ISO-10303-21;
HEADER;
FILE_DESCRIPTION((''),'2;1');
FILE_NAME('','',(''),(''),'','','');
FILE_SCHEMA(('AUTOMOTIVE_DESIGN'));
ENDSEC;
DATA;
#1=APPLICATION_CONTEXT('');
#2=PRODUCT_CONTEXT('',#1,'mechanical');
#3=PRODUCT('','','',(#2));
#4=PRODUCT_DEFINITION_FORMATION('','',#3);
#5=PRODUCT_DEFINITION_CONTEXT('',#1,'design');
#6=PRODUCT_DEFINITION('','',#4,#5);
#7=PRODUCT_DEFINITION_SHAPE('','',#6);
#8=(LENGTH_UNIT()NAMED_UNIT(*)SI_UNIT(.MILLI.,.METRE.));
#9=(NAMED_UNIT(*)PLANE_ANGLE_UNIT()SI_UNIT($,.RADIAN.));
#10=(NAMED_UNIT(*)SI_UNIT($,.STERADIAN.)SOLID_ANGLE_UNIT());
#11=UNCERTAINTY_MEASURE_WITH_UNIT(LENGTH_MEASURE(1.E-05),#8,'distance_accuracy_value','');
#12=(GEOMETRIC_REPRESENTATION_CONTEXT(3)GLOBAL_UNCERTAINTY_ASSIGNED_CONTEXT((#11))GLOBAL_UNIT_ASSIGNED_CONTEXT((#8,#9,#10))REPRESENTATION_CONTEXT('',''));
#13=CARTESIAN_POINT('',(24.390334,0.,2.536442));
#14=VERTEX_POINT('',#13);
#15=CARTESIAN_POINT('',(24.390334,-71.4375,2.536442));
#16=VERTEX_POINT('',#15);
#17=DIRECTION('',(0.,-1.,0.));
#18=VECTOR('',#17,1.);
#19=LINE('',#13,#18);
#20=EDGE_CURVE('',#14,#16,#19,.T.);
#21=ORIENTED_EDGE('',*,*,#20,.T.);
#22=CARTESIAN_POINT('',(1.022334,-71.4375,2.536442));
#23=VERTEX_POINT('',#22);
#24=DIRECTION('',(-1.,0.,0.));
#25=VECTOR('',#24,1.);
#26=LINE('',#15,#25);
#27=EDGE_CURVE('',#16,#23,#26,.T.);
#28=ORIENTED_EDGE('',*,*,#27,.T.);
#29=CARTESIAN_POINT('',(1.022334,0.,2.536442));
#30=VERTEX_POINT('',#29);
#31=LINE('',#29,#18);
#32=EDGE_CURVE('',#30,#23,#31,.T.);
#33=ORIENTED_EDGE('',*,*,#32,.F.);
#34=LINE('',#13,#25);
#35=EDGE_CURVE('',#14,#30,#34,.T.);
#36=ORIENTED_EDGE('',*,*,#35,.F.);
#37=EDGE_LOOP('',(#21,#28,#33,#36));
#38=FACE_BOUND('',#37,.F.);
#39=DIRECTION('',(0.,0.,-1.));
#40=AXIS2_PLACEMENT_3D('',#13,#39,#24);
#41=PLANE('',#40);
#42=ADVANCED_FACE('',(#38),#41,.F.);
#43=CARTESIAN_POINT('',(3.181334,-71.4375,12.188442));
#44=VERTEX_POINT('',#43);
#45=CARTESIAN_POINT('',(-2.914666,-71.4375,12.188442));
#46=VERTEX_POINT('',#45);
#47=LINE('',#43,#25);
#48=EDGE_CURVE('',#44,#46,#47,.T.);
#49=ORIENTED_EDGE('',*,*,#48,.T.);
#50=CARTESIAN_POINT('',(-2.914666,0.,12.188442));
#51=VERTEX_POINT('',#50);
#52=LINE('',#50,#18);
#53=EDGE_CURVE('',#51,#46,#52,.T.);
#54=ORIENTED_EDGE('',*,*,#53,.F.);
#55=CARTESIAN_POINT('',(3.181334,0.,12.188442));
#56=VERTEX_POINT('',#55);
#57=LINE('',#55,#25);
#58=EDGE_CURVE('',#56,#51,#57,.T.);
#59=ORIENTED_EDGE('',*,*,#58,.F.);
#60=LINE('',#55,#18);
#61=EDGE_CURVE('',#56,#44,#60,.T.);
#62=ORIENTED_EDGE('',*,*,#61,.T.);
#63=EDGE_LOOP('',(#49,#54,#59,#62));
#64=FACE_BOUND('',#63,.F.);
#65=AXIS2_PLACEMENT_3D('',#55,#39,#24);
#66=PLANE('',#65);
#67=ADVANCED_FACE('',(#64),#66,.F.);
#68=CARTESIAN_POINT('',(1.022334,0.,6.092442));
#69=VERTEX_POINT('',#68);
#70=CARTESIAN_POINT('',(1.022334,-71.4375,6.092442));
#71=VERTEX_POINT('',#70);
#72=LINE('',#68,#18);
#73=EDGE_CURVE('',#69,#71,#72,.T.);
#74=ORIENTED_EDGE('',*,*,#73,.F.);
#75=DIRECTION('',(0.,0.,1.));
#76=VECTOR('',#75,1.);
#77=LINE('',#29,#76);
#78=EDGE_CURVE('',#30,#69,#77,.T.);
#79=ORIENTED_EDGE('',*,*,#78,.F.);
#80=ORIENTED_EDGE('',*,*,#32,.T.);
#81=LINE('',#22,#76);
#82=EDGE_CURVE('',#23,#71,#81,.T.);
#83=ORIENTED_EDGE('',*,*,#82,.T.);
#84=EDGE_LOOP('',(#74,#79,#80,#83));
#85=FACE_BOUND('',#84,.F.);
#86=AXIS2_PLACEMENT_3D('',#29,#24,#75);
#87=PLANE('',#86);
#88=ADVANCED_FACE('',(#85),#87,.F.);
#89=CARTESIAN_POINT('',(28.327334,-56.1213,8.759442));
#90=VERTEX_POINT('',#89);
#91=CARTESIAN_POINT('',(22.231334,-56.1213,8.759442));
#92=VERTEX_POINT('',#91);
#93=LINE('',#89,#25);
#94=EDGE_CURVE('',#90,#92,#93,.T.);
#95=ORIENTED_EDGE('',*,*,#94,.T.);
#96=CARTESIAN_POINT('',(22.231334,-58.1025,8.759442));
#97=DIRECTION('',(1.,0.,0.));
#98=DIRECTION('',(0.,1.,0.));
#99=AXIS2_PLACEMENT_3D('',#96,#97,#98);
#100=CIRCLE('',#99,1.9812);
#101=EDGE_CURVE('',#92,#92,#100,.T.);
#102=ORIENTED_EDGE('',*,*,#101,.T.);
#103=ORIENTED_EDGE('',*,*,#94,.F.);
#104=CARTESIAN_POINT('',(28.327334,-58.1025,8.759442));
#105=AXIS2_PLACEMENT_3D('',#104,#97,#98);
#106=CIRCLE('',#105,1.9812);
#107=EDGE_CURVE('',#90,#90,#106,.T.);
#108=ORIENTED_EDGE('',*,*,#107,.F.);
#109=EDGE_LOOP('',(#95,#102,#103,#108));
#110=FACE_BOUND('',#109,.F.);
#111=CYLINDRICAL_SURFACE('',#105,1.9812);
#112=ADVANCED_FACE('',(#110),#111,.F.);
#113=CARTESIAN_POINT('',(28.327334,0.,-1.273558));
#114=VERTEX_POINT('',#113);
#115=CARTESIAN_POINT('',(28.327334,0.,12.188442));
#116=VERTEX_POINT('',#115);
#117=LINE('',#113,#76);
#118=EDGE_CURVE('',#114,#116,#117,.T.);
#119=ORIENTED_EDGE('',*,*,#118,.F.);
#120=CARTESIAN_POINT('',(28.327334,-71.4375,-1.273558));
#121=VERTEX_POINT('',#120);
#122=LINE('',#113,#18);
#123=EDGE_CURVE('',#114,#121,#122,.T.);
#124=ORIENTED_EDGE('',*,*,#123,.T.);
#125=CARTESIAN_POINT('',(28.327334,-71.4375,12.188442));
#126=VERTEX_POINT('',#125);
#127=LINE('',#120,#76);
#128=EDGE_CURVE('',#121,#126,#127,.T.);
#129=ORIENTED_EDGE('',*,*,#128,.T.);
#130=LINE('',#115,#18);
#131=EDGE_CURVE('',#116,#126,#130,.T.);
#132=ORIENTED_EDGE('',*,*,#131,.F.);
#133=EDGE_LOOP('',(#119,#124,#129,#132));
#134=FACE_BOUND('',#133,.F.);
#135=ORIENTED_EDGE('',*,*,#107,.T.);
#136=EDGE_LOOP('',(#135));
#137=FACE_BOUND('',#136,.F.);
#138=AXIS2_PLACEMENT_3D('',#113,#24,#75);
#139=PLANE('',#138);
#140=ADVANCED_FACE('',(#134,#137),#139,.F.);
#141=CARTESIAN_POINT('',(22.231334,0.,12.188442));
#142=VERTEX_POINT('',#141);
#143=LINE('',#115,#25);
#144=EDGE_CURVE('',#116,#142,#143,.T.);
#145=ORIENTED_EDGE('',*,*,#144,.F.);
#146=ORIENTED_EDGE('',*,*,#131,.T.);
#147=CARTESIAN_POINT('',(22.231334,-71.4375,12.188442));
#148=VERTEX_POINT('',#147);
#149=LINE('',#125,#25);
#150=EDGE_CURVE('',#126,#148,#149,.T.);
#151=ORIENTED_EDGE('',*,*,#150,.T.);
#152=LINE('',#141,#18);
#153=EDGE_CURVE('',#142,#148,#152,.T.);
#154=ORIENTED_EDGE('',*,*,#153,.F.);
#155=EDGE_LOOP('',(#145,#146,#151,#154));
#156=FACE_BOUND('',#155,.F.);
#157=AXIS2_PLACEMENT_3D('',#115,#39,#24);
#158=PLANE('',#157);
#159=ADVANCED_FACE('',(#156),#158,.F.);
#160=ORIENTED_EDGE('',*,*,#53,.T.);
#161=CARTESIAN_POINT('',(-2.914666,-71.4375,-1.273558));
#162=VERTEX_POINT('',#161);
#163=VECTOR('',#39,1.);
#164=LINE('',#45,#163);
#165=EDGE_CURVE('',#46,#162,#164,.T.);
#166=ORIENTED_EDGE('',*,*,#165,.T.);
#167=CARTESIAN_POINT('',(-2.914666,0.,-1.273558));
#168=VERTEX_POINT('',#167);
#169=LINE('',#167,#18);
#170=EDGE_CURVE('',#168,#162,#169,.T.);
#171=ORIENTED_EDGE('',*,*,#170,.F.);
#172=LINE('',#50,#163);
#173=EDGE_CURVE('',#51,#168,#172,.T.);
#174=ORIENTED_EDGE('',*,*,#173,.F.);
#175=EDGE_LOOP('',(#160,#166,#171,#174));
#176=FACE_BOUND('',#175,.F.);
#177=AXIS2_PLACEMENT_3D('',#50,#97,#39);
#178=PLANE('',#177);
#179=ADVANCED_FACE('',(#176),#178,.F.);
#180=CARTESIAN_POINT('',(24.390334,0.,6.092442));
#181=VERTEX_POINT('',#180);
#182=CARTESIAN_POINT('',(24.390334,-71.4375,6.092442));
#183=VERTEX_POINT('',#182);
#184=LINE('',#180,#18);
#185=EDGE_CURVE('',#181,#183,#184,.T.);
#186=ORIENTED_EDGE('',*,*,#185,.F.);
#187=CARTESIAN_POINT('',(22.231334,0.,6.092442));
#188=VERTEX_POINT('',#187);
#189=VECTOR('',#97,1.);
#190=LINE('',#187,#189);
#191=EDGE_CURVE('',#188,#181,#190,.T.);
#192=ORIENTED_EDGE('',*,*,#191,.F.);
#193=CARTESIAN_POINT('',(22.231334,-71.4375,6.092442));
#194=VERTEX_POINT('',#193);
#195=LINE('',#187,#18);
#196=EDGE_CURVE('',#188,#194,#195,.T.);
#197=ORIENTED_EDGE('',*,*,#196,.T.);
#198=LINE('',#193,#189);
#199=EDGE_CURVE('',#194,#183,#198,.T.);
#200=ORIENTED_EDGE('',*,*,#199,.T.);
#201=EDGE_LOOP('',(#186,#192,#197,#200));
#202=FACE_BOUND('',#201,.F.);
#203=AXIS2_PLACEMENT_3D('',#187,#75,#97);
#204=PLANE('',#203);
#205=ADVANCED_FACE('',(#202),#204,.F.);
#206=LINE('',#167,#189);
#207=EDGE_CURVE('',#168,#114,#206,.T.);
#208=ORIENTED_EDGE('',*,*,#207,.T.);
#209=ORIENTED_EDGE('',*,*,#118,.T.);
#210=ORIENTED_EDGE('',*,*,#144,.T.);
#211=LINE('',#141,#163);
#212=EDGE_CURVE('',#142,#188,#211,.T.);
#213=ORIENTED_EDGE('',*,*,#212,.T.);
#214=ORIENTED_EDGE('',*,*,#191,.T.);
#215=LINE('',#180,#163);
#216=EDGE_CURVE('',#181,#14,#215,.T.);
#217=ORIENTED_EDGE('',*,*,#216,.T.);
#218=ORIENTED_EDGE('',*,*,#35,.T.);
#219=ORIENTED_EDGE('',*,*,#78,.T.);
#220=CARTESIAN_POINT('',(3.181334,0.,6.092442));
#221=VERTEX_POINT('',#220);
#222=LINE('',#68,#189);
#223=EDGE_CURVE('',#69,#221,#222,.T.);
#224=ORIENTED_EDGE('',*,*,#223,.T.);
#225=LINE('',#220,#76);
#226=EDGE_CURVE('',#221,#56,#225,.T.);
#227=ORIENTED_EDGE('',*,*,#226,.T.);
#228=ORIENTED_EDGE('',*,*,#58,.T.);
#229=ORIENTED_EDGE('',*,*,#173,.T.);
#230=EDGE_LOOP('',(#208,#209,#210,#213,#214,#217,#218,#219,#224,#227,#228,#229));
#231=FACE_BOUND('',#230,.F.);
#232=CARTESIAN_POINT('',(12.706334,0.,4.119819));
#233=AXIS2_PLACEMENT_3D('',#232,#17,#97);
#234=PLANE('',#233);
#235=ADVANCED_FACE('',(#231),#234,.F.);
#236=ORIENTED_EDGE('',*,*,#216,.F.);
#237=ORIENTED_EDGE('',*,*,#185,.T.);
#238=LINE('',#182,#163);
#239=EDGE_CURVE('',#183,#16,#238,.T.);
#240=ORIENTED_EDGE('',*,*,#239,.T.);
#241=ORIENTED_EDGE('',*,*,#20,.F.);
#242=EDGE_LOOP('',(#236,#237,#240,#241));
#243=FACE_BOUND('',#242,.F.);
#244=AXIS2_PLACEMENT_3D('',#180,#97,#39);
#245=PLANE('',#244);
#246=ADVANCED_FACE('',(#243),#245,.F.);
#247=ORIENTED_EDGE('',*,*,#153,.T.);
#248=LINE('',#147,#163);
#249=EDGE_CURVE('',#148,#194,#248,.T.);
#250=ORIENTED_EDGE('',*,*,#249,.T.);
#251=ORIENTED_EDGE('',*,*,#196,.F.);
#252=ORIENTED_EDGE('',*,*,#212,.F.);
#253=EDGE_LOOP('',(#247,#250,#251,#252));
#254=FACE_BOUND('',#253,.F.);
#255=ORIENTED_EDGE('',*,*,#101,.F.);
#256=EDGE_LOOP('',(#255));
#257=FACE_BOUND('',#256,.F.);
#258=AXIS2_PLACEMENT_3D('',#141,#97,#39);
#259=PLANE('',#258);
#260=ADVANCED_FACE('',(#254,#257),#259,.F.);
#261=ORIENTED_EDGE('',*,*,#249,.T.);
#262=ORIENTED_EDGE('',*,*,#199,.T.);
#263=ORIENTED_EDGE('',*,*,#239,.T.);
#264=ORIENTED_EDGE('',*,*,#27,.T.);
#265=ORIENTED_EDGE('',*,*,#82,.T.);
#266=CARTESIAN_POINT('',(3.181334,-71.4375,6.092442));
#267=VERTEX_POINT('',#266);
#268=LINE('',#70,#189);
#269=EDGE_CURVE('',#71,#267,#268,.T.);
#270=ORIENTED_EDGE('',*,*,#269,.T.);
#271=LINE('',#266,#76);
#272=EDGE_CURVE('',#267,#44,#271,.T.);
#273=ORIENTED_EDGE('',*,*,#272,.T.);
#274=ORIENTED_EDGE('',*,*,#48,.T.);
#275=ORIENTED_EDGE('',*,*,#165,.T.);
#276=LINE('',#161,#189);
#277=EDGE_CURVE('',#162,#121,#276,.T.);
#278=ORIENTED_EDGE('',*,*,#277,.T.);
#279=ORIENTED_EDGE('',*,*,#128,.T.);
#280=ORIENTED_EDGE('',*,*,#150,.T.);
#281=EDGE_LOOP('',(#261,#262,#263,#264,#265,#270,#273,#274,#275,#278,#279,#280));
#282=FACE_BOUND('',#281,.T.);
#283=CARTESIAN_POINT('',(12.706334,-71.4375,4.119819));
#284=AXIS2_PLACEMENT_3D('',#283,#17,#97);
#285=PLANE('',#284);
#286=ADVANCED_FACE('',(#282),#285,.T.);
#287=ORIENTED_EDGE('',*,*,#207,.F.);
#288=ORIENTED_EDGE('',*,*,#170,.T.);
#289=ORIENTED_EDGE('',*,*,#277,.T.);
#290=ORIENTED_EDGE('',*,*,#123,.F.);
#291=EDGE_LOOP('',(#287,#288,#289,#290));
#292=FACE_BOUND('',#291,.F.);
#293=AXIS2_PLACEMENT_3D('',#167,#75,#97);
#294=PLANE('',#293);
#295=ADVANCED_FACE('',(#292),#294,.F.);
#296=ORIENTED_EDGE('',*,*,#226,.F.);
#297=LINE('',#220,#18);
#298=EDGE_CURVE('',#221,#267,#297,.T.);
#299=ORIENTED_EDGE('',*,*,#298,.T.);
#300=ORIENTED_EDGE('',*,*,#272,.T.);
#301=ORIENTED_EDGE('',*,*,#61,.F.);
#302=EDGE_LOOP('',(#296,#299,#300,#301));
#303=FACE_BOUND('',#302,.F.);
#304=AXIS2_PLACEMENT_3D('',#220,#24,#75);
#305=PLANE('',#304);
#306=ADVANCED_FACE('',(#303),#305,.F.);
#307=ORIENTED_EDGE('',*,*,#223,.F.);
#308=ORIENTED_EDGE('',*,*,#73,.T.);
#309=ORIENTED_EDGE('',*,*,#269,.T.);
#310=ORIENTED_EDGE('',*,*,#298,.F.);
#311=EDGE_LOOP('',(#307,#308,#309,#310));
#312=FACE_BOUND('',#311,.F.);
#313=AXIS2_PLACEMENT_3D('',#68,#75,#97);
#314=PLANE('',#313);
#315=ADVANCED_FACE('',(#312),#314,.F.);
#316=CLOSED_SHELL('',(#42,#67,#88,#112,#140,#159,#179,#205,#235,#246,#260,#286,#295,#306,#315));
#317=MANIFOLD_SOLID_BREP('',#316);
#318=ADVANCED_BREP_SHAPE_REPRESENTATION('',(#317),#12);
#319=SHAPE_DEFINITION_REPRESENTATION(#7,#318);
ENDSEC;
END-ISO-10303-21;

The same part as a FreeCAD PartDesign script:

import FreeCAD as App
import Part
import Sketcher
from FreeCAD import Vector
Q = App.Units.Quantity


def add_polygon(sketch, points):
    """Adds a closed chain of lines whose ends are joined by coincident constraints."""
    first, n = sketch.GeometryCount, len(points)
    for a, b in zip(points, points[1:] + points[:1]):
        sketch.addGeometry(Part.LineSegment(App.Vector(*a, 0), App.Vector(*b, 0)), False)
    for i in range(n):
        sketch.addConstraint(Sketcher.Constraint("Coincident", first + i, 2, first + (i + 1) % n, 1))

doc = App.newDocument("Part")
params = doc.addObject("Spreadsheet::Sheet", "Params")
for row, (alias, value) in enumerate([
    ("sketch1_width", "0.24 in"),
    ("sketch1_width2", "1.23 in"),
    ("sketch1_width3", "0.92 in"),
    ("sketch1_height", "0.53 in"),
    ("sketch1_height2", "0.14 in"),
    ("pad1_length", "2.8125 in"),
    ("sketch2_diameter", "0.156 in"),
    ("pocket1_length", "0.24 in"),
], start=1):
    params.set(f"A{row}", alias)
    params.set(f"B{row}", "=" + value)
    params.setAlias(f"B{row}", alias)

body = doc.addObject("PartDesign::Body", "Body")

sketch1 = body.newObject("Sketcher::SketchObject", "Sketch")
sketch1.AttachmentSupport = (doc.getObject("XZ_Plane"), [""])
sketch1.MapMode = "FlatFace"
add_polygon(sketch1, [(3.2, 6.1), (3.2, 12.2), (-2.9, 12.2), (-2.9, -1.3), (28.3, -1.3), (28.3, 12.2), (22.2, 12.2), (22.2, 6.1), (24.4, 6.1), (24.4, 2.5), (1, 2.5), (1, 6.1)])
sketch1.addConstraint([
    Sketcher.Constraint("Vertical", 0),
    Sketcher.Constraint("Horizontal", 1),
    Sketcher.Constraint("Vertical", 2),
    Sketcher.Constraint("Horizontal", 3),
    Sketcher.Constraint("Vertical", 4),
    Sketcher.Constraint("Horizontal", 5),
    Sketcher.Constraint("Vertical", 6),
    Sketcher.Constraint("Horizontal", 7),
    Sketcher.Constraint("Vertical", 8),
    Sketcher.Constraint("Horizontal", 9),
    Sketcher.Constraint("Vertical", 10),
    Sketcher.Constraint("Horizontal", 11),
    Sketcher.Constraint("Horizontal", 1, 2, 4, 2),
    Sketcher.Constraint("Horizontal", 7, 2, 10, 2),
    Sketcher.Constraint("Equal", 1, 5),
    Sketcher.Constraint("Equal", 7, 11),
    Sketcher.Constraint("Equal", 5, 0),
    Sketcher.Constraint("DistanceX", 1, 2, 1, 1, Q("0.24 in")),
    Sketcher.Constraint("DistanceX", 3, 1, 3, 2, Q("1.23 in")),
    Sketcher.Constraint("DistanceX", 9, 2, 9, 1, Q("0.92 in")),
    Sketcher.Constraint("DistanceY", 2, 2, 2, 1, Q("0.53 in")),
    Sketcher.Constraint("DistanceY", 8, 2, 8, 1, Q("0.14 in")),
    Sketcher.Constraint("DistanceX", -1, 1, 0, 2, 3.181334),
    Sketcher.Constraint("DistanceY", -1, 1, 0, 2, 12.188442),
])
sketch1.setExpression("Constraints[29]", "Params.sketch1_width")
sketch1.setExpression("Constraints[30]", "Params.sketch1_width2")
sketch1.setExpression("Constraints[31]", "Params.sketch1_width3")
sketch1.setExpression("Constraints[32]", "Params.sketch1_height")
sketch1.setExpression("Constraints[33]", "Params.sketch1_height2")
pad1 = body.newObject("PartDesign::Pad", "Pad")
pad1.Profile = sketch1
pad1.setExpression("Length", "Params.pad1_length")

sketch2 = body.newObject("Sketcher::SketchObject", "Sketch001")
sketch2.AttachmentSupport = (doc.getObject("YZ_Plane"), [""])
sketch2.MapMode = "FlatFace"
sketch2.AttachmentOffset = App.Placement(Vector(0, 0, 28.327334), App.Rotation())
sketch2.addGeometry(Part.Circle(Vector(-58.1, 8.8, 0), Vector(0, 0, 1), 2), False)
sketch2.addConstraint([
    Sketcher.Constraint("Diameter", 0, Q("0.156 in")),
    Sketcher.Constraint("DistanceX", 0, 3, -1, 1, Q("2.2875 in")),
    Sketcher.Constraint("DistanceY", -1, 1, 0, 3, 8.759442),
])
sketch2.setExpression("Constraints[0]", "Params.sketch2_diameter")
pocket1 = body.newObject("PartDesign::Pocket", "Pocket")
pocket1.Profile = sketch2
pocket1.setExpression("Length", "Params.pocket1_length")

doc.recompute()
